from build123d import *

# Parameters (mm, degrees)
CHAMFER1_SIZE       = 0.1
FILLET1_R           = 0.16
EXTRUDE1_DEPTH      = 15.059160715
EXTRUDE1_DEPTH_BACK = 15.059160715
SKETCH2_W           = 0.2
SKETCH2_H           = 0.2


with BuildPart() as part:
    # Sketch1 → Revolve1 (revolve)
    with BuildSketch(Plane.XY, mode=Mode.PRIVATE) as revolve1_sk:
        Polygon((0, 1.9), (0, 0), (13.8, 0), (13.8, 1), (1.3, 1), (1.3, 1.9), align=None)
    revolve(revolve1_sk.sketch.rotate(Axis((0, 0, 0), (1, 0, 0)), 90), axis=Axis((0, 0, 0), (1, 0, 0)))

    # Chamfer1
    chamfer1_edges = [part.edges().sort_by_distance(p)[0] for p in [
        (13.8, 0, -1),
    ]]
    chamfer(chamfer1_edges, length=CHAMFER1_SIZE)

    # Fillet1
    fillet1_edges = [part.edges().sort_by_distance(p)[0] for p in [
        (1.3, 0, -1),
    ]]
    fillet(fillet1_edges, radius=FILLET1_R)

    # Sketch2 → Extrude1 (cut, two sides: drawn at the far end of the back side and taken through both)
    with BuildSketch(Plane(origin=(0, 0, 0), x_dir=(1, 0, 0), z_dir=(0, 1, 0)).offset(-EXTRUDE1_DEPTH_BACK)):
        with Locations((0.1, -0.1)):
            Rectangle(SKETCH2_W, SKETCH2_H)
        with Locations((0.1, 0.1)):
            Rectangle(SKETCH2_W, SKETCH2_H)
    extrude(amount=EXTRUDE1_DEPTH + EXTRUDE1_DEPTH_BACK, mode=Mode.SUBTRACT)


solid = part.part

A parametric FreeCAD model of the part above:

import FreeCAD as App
import Part
import Sketcher
Q = App.Units.Quantity


def edges_at(feature, points):
    """Names of the edges that pass closest to the given points."""
    edges = feature.Shape.Edges
    near = lambda p: min(range(len(edges)), key=lambda i: edges[i].distToShape(Part.Vertex(*p))[0])
    return sorted({f"Edge{near(p) + 1}" for p in points})

doc = App.newDocument("Part")
body = doc.addObject("PartDesign::Body", "Body")

# Sketch on XY plane
sketch1 = body.newObject("Sketcher::SketchObject", "Sketch")
sketch1.AttachmentSupport = (doc.getObject("XY_Plane"), [""])
sketch1.MapMode = "FlatFace"
sketch1.addGeometry([
    Part.LineSegment(App.Vector(0, 1.9, 0), App.Vector(0, 0, 0)),  # 0
    Part.LineSegment(App.Vector(0, 0, 0), App.Vector(13.8, 0, 0)),  # 1
    Part.LineSegment(App.Vector(13.8, 0, 0), App.Vector(13.8, 1, 0)),  # 2
    Part.LineSegment(App.Vector(13.8, 1, 0), App.Vector(1.3, 1, 0)),  # 3
    Part.LineSegment(App.Vector(1.3, 1, 0), App.Vector(1.3, 1.9, 0)),  # 4
    Part.LineSegment(App.Vector(1.3, 1.9, 0), App.Vector(0, 1.9, 0)),  # 5
], False)
sketch1.addConstraint([
    Sketcher.Constraint("Coincident", 0, 2, 1, 1),
    Sketcher.Constraint("Coincident", 1, 2, 2, 1),
    Sketcher.Constraint("Coincident", 2, 2, 3, 1),
    Sketcher.Constraint("Coincident", 3, 2, 4, 1),
    Sketcher.Constraint("Coincident", 4, 2, 5, 1),
    Sketcher.Constraint("Coincident", 5, 2, 0, 1),
    Sketcher.Constraint("Vertical", 0),
    Sketcher.Constraint("Horizontal", 1),
    Sketcher.Constraint("Vertical", 2),
    Sketcher.Constraint("Horizontal", 3),
    Sketcher.Constraint("Vertical", 4),
    Sketcher.Constraint("Horizontal", 5),
    Sketcher.Constraint("Coincident", 0, 2, -1, 1),
    Sketcher.Constraint("DistanceY", 2, 1, 2, 2, Q("1 mm")),
    Sketcher.Constraint("DistanceX", 1, 1, 1, 2, Q("13.8 mm")),
    Sketcher.Constraint("DistanceX", 3, 2, 3, 1, Q("12.5 mm")),
    Sketcher.Constraint("DistanceY", 0, 2, 0, 1, Q("1.9 mm")),
])
revolution = body.newObject("PartDesign::Revolution", "Revolution")
revolution.Profile = sketch1
revolution.ReferenceAxis = (sketch1, ["H_Axis"])
revolution.Angle = 360
doc.recompute()

chamfer = body.newObject("PartDesign::Chamfer", "Chamfer")
chamfer.Base = (revolution, edges_at(revolution, [(13.8, 0, -1)]))
chamfer.Size = 0.1
doc.recompute()

fillet = body.newObject("PartDesign::Fillet", "Fillet")
fillet.Base = (chamfer, edges_at(chamfer, [(1.3, 0, -1)]))
fillet.Radius = 0.16

# Sketch on XZ plane
sketch2 = body.newObject("Sketcher::SketchObject", "Sketch001")
sketch2.AttachmentSupport = (doc.getObject("XZ_Plane"), [""])
sketch2.MapMode = "FlatFace"
sketch2.addGeometry([
    Part.LineSegment(App.Vector(0, 0.2, 0), App.Vector(0.2, 0.2, 0)),
    Part.LineSegment(App.Vector(0.2, 0.2, 0), App.Vector(0.2, -0.2, 0)),
    Part.LineSegment(App.Vector(0.2, -0.2, 0), App.Vector(0, -0.2, 0)),
    Part.LineSegment(App.Vector(0, -0.2, 0), App.Vector(0, 0.2, 0)),
], False)
sketch2.addConstraint([
    Sketcher.Constraint("Coincident", 0, 2, 1, 1),
    Sketcher.Constraint("Coincident", 1, 2, 2, 1),
    Sketcher.Constraint("Coincident", 2, 2, 3, 1),
    Sketcher.Constraint("Coincident", 3, 2, 0, 1),
    Sketcher.Constraint("Horizontal", 0),
    Sketcher.Constraint("Vertical", 1),
    Sketcher.Constraint("Horizontal", 2),
    Sketcher.Constraint("Vertical", 3),
    Sketcher.Constraint("Symmetric", 2, 2, 3, 2, -1, 1),
    Sketcher.Constraint("DistanceX", 0, 1, 0, 2, Q("0.2 mm")),
    Sketcher.Constraint("DistanceY", 1, 2, 1, 1, Q("0.4 mm")),
])
pocket1 = body.newObject("PartDesign::Pocket", "Pocket")
pocket1.Profile = sketch2
pocket1.Type = "ThroughAll"
pocket1.Midplane = True

doc.recompute()
